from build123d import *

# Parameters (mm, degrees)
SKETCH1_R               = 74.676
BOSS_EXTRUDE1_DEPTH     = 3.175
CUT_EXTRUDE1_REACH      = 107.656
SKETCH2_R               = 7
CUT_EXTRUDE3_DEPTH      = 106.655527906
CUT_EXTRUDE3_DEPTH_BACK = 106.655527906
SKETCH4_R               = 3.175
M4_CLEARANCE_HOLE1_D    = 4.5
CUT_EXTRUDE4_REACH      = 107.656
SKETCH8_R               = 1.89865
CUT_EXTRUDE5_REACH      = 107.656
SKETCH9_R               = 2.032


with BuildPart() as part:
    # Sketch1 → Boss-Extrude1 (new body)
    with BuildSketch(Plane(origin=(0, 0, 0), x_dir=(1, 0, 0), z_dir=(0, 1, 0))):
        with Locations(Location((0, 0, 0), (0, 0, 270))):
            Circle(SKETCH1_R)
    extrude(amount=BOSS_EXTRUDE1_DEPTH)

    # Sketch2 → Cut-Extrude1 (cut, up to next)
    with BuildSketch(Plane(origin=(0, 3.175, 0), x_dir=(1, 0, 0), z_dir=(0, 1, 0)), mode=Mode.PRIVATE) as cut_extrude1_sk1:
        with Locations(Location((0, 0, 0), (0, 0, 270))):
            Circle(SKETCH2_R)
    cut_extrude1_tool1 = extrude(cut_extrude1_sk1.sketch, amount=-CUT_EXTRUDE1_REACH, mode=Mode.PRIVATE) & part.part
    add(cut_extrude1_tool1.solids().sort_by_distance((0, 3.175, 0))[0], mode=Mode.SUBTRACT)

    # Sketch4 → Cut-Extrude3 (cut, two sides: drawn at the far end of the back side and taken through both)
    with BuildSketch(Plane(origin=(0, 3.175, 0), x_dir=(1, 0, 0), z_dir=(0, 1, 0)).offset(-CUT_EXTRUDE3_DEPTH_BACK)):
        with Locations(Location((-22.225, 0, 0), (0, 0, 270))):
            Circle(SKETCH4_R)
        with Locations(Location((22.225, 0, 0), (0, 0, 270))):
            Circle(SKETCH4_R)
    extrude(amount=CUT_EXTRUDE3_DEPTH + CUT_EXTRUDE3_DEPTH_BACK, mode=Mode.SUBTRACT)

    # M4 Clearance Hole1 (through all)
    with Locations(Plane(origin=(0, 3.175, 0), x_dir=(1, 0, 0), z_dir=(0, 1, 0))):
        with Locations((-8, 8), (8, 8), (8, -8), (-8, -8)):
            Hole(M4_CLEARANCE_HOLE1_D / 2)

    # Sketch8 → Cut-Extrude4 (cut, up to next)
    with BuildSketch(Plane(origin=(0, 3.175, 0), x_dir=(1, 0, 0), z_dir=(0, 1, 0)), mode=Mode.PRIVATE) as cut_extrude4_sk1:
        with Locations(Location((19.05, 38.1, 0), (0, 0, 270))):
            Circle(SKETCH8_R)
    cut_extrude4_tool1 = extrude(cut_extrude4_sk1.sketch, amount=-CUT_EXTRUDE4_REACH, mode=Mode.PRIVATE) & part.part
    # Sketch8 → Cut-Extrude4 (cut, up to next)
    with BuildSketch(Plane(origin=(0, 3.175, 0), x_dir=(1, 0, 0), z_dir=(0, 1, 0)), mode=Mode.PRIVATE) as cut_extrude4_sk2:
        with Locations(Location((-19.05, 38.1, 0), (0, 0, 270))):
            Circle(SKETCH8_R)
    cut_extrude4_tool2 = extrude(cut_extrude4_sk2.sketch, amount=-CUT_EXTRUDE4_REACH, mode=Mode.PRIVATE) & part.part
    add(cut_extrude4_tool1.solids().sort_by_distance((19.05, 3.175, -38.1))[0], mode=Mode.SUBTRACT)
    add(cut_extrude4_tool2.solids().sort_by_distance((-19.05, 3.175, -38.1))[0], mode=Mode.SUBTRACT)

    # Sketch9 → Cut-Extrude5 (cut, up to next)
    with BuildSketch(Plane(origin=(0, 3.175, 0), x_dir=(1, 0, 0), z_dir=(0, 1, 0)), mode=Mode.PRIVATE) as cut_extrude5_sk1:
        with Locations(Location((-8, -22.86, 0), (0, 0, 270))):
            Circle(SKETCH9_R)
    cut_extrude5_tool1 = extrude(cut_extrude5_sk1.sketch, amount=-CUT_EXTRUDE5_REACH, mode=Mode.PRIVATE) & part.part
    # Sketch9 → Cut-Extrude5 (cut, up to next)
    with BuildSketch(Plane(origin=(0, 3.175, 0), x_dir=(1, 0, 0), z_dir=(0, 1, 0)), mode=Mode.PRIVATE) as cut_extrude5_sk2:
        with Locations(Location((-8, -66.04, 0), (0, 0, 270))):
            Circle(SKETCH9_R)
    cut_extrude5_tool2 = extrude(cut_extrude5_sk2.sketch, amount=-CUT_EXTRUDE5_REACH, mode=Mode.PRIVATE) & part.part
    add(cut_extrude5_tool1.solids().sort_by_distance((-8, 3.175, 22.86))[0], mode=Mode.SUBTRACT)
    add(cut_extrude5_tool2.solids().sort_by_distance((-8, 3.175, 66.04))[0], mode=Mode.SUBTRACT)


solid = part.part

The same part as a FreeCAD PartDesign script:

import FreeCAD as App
import Part
import Sketcher
Q = App.Units.Quantity

doc = App.newDocument("Part")
body = doc.addObject("PartDesign::Body", "Body")

# Sketch on XZ plane
sketch1 = body.newObject("Sketcher::SketchObject", "Sketch")
sketch1.AttachmentSupport = (doc.getObject("XZ_Plane"), [""])
sketch1.MapMode = "FlatFace"
sketch1.addGeometry(Part.Circle(App.Vector(0, 0, 0), App.Vector(0, 0, 1), 75), False)
sketch1.addConstraint([
    Sketcher.Constraint("Coincident", 0, 3, -1, 1),
    Sketcher.Constraint("Diameter", 0, Q("5.88 in")),
])
pad1 = body.newObject("PartDesign::Pad", "Pad")
pad1.Profile = sketch1
pad1.Length = Q("0.125 in")
pad1.Reversed = True

# Sketch on XZ plane
sketch2 = body.newObject("Sketcher::SketchObject", "Sketch001")
sketch2.AttachmentSupport = (doc.getObject("XZ_Plane"), [""])
sketch2.MapMode = "FlatFace"
sketch2.AttachmentOffset = App.Placement(App.Vector(0, 0, -0.125 * 25.4), App.Rotation())
sketch2.addGeometry(Part.Circle(App.Vector(0, 0, 0), App.Vector(0, 0, 1), 7), False)
sketch2.addConstraint([
    Sketcher.Constraint("Coincident", 0, 3, -1, 1),
    Sketcher.Constraint("Diameter", 0, 14.0),
])
pocket1 = body.newObject("PartDesign::Pocket", "Pocket")
pocket1.Profile = sketch2
pocket1.Type = "UpToFirst"
pocket1.Reversed = True

# Sketch on XZ plane
sketch3 = body.newObject("Sketcher::SketchObject", "Sketch002")
sketch3.AttachmentSupport = (doc.getObject("XZ_Plane"), [""])
sketch3.MapMode = "FlatFace"
sketch3.AttachmentOffset = App.Placement(App.Vector(0, 0, -0.125 * 25.4), App.Rotation())
sketch3.addGeometry([
    Part.Circle(App.Vector(-22.2, 0, 0), App.Vector(0, 0, 1), 3.2),
    Part.Circle(App.Vector(22.2, 0, 0), App.Vector(0, 0, 1), 3.2),
], False)
sketch3.addConstraint([
    Sketcher.Constraint("Equal", 0, 1),
    Sketcher.Constraint("Symmetric", 0, 3, 1, 3, -1, 1),
    Sketcher.Constraint("PointOnObject", 0, 3, -1),
    Sketcher.Constraint("Diameter", 0, Q("0.25 in")),
    Sketcher.Constraint("DistanceX", 0, 3, 1, 3, Q("1.75 in")),
])
pocket2 = body.newObject("PartDesign::Pocket", "Pocket001")
pocket2.Profile = sketch3
pocket2.Type = "ThroughAll"
pocket2.Midplane = True

# Sketch on XZ plane
sketch4 = body.newObject("Sketcher::SketchObject", "Sketch003")
sketch4.AttachmentSupport = (doc.getObject("XZ_Plane"), [""])
sketch4.MapMode = "FlatFace"
sketch4.AttachmentOffset = App.Placement(App.Vector(0, 0, -0.125 * 25.4), App.Rotation())
sketch4.addGeometry([
    Part.Circle(App.Vector(-8, -8, 0), App.Vector(0, 0, 1), 2.2),
    Part.Circle(App.Vector(8, -8, 0), App.Vector(0, 0, 1), 2.2),
    Part.Circle(App.Vector(8, 8, 0), App.Vector(0, 0, 1), 2.2),
    Part.Circle(App.Vector(-8, 8, 0), App.Vector(0, 0, 1), 2.2),
], False)
sketch4.addConstraint([
    Sketcher.Constraint("Equal", 0, 1),
    Sketcher.Constraint("Equal", 1, 2),
    Sketcher.Constraint("Equal", 2, 3),
    Sketcher.Constraint("Symmetric", 0, 3, 2, 3, -1, 1),
    Sketcher.Constraint("Symmetric", 1, 3, 3, 3, -1, 1),
    Sketcher.Constraint("Symmetric", 0, 3, 1, 3, -2),
    Sketcher.Constraint("Diameter", 0, 4.5),
    Sketcher.Constraint("DistanceX", 0, 3, -1, 1, 8.0),
    Sketcher.Constraint("DistanceY", 0, 3, -1, 1, 8.0),
])
doc.recompute()
hole = body.newObject("PartDesign::Hole", "Hole")
hole.Profile = sketch4
hole.ThreadType = "None"
hole.Diameter = 4.5
hole.DepthType = "ThroughAll"
hole.Reversed = True

# Sketch on XZ plane
sketch5 = body.newObject("Sketcher::SketchObject", "Sketch004")
sketch5.AttachmentSupport = (doc.getObject("XZ_Plane"), [""])
sketch5.MapMode = "FlatFace"
sketch5.AttachmentOffset = App.Placement(App.Vector(0, 0, -0.125 * 25.4), App.Rotation())
sketch5.addGeometry(Part.Circle(App.Vector(19.1, -38.1, 0), App.Vector(0, 0, 1), 1.9), False)
sketch5.addConstraint([
    Sketcher.Constraint("Diameter", 0, Q("0.1495 in")),
    Sketcher.Constraint("DistanceY", 0, 3, -1, 1, Q("1.5 in")),
    Sketcher.Constraint("DistanceX", -1, 1, 0, 3, Q("0.75 in")),
])
pocket3 = body.newObject("PartDesign::Pocket", "Pocket002")
pocket3.Profile = sketch5
pocket3.Type = "UpToFirst"
pocket3.Reversed = True

# Sketch on XZ plane
sketch6 = body.newObject("Sketcher::SketchObject", "Sketch005")
sketch6.AttachmentSupport = (doc.getObject("XZ_Plane"), [""])
sketch6.MapMode = "FlatFace"
sketch6.AttachmentOffset = App.Placement(App.Vector(0, 0, -0.125 * 25.4), App.Rotation())
sketch6.addGeometry(Part.Circle(App.Vector(-19.1, -38.1, 0), App.Vector(0, 0, 1), 1.9), False)
sketch6.addConstraint([
    Sketcher.Constraint("Diameter", 0, Q("0.1495 in")),
    Sketcher.Constraint("DistanceY", 0, 3, -1, 1, Q("1.5 in")),
    Sketcher.Constraint("DistanceX", 0, 3, -1, 1, Q("0.75 in")),
])
pocket4 = body.newObject("PartDesign::Pocket", "Pocket003")
pocket4.Profile = sketch6
pocket4.Type = "UpToFirst"
pocket4.Reversed = True

# Sketch on XZ plane
sketch7 = body.newObject("Sketcher::SketchObject", "Sketch006")
sketch7.AttachmentSupport = (doc.getObject("XZ_Plane"), [""])
sketch7.MapMode = "FlatFace"
sketch7.AttachmentOffset = App.Placement(App.Vector(0, 0, -0.125 * 25.4), App.Rotation())
sketch7.addGeometry(Part.Circle(App.Vector(-8, 22.9, 0), App.Vector(0, 0, 1), 2), False)
sketch7.addConstraint([
    Sketcher.Constraint("Diameter", 0, Q("0.16 in")),
    Sketcher.Constraint("DistanceY", -1, 1, 0, 3, Q("0.9 in")),
    Sketcher.Constraint("DistanceX", 0, 3, -1, 1, 8.0),
])
pocket5 = body.newObject("PartDesign::Pocket", "Pocket004")
pocket5.Profile = sketch7
pocket5.Type = "UpToFirst"
pocket5.Reversed = True

# Sketch on XZ plane
sketch8 = body.newObject("Sketcher::SketchObject", "Sketch007")
sketch8.AttachmentSupport = (doc.getObject("XZ_Plane"), [""])
sketch8.MapMode = "FlatFace"
sketch8.AttachmentOffset = App.Placement(App.Vector(0, 0, -0.125 * 25.4), App.Rotation())
sketch8.addGeometry(Part.Circle(App.Vector(-8, 66, 0), App.Vector(0, 0, 1), 2), False)
sketch8.addConstraint([
    Sketcher.Constraint("Diameter", 0, Q("0.16 in")),
    Sketcher.Constraint("DistanceY", -1, 1, 0, 3, Q("2.6 in")),
    Sketcher.Constraint("DistanceX", 0, 3, -1, 1, 8.0),
])
pocket6 = body.newObject("PartDesign::Pocket", "Pocket005")
pocket6.Profile = sketch8
pocket6.Type = "UpToFirst"
pocket6.Reversed = True

doc.recompute()
